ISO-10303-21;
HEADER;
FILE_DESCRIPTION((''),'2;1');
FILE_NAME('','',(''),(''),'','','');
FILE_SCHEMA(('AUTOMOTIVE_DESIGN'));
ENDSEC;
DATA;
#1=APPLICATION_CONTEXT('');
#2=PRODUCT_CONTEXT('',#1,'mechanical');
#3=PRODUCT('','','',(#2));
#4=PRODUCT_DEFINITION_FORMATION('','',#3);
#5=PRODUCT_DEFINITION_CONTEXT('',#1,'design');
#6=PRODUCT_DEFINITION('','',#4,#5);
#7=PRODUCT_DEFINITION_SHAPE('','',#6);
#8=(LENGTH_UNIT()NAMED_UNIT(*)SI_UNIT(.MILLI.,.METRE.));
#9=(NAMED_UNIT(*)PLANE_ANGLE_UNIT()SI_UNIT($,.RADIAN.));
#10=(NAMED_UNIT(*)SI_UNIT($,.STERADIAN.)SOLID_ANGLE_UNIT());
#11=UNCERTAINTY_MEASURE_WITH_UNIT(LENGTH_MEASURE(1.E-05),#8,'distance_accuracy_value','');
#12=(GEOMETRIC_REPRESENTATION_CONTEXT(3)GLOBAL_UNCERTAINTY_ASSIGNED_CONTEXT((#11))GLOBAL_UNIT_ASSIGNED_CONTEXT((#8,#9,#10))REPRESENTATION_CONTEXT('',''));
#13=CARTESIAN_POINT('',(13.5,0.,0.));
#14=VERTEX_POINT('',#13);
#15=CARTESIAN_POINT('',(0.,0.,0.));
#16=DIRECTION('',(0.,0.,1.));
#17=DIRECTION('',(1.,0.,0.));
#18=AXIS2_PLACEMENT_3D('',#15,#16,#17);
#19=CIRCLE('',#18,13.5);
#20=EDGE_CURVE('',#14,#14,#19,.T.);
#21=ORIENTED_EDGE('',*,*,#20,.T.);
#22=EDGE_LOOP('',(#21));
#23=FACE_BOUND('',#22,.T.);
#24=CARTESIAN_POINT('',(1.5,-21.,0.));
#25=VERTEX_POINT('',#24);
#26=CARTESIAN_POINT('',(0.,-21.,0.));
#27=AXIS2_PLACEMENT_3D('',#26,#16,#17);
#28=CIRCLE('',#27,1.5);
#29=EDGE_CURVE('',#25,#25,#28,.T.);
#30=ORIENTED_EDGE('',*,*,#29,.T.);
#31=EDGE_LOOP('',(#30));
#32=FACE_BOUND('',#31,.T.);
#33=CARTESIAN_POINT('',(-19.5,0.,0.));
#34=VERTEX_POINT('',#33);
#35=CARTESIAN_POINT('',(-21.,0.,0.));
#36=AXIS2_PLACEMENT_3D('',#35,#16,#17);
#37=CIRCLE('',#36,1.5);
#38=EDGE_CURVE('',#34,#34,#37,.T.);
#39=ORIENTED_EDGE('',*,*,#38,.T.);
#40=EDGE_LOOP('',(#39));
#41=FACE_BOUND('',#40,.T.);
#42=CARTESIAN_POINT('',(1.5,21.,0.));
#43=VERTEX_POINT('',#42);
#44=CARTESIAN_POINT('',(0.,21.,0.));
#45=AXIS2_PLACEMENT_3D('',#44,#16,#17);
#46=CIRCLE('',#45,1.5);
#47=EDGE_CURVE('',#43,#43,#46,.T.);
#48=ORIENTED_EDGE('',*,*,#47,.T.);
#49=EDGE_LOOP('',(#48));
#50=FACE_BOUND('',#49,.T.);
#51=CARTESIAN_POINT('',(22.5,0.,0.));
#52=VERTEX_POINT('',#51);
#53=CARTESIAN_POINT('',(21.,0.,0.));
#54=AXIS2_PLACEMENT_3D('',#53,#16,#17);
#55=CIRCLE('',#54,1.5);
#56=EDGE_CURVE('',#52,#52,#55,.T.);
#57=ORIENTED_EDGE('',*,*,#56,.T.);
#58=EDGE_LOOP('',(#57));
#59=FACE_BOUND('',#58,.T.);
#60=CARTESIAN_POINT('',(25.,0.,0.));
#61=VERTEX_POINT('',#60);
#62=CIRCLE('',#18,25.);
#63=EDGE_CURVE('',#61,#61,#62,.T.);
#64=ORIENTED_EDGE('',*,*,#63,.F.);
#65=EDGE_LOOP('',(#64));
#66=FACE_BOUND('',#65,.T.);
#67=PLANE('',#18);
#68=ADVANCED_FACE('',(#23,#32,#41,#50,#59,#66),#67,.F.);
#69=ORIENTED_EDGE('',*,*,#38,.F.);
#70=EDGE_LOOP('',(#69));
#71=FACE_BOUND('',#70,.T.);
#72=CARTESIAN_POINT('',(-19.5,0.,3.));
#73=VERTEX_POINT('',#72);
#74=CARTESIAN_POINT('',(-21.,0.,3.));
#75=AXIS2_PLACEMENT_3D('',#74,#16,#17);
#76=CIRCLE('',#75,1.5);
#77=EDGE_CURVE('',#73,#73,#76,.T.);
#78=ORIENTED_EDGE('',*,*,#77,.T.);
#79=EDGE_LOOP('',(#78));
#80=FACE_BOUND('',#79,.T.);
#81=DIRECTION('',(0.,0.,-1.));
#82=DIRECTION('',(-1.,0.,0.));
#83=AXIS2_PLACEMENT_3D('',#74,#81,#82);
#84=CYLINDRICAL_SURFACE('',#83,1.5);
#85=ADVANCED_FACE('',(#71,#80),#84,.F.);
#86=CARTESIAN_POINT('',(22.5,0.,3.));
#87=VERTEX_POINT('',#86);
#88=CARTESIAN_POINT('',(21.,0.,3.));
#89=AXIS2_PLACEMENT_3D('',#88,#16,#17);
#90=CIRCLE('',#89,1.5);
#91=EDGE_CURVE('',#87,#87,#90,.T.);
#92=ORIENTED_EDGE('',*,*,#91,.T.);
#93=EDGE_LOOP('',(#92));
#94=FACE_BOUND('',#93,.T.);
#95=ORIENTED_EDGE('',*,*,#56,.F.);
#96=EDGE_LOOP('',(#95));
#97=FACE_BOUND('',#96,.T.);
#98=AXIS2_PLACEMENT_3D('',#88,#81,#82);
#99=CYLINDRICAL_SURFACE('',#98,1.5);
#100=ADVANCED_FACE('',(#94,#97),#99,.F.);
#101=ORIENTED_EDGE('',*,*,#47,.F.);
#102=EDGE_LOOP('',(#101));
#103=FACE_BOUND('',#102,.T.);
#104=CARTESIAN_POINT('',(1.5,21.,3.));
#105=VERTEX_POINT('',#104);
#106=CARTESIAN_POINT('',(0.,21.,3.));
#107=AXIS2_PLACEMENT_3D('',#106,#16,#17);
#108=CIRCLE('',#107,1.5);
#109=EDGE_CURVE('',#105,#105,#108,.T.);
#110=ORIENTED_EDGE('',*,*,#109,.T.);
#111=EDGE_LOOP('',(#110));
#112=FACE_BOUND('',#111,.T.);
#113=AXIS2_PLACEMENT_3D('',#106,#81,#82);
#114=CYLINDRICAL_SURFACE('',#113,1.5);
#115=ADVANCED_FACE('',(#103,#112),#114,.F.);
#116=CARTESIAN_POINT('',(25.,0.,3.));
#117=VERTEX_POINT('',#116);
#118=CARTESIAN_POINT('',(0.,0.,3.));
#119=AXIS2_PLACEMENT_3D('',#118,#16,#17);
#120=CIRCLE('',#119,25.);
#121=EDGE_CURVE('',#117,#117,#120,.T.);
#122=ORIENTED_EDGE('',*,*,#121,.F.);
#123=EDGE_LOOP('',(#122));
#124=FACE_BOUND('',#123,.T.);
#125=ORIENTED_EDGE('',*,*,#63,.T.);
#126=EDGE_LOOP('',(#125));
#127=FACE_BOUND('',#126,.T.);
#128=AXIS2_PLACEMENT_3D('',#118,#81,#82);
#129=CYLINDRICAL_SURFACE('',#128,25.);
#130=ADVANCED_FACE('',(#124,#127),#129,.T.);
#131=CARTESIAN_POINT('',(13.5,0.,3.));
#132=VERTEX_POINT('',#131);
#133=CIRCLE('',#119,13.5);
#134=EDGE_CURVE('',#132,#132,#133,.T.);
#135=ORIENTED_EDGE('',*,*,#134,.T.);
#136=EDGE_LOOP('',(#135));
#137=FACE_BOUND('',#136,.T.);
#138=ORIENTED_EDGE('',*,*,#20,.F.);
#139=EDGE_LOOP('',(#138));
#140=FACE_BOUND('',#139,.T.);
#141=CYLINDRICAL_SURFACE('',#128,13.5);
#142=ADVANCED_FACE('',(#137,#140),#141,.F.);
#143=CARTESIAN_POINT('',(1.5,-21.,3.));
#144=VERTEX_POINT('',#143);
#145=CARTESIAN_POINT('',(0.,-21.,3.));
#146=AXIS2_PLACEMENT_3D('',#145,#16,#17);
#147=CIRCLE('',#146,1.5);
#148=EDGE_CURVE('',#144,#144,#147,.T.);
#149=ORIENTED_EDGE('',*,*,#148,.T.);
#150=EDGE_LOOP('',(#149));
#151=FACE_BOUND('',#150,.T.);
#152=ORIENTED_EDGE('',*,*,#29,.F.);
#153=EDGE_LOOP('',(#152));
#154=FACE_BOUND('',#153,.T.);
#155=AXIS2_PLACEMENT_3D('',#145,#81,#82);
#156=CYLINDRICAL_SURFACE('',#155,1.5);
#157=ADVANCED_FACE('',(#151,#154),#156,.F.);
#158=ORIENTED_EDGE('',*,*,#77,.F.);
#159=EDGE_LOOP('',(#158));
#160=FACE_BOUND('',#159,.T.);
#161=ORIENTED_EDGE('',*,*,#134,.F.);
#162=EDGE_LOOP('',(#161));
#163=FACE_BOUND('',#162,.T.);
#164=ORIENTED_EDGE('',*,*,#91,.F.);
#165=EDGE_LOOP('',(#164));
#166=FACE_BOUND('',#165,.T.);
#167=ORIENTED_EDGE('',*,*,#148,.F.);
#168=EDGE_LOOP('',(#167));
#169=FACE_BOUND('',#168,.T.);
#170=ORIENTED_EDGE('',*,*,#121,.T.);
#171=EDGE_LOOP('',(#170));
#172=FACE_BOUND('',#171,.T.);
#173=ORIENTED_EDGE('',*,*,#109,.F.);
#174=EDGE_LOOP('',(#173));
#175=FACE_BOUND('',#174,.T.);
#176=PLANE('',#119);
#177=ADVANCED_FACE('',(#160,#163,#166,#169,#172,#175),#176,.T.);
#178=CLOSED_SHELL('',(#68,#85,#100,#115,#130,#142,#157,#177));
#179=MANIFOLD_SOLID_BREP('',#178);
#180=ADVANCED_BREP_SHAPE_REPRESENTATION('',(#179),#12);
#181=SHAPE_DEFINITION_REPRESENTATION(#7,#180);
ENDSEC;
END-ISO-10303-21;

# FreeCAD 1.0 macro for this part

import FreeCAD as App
import Part
import Sketcher
Q = App.Units.Quantity

doc = App.newDocument("Part")
params = doc.addObject("Spreadsheet::Sheet", "Params")
for row, (alias, value) in enumerate([
    ("sketch1_diameter", "50 mm"),
    ("sketch1_diameter2", "3 mm"),
    ("sketch1_diameter3", "27 mm"),
    ("pad1_length", "3 mm"),
], start=1):
    params.set(f"A{row}", alias)
    params.set(f"B{row}", "=" + value)
    params.setAlias(f"B{row}", alias)

body = doc.addObject("PartDesign::Body", "Body")

sketch1 = body.newObject("Sketcher::SketchObject", "Sketch")
sketch1.AttachmentSupport = (doc.getObject("XY_Plane"), [""])
sketch1.MapMode = "FlatFace"
sketch1.addGeometry(Part.Circle(App.Vector(0, 0, 0), App.Vector(0, 0, 1), 25), False)
sketch1.addGeometry(Part.Circle(App.Vector(0, -21, 0), App.Vector(0, 0, 1), 1.5), False)
sketch1.addGeometry(Part.Circle(App.Vector(-21, 0, 0), App.Vector(0, 0, 1), 1.5), False)
sketch1.addGeometry(Part.Circle(App.Vector(0, 0, 0), App.Vector(0, 0, 1), 13.5), False)
sketch1.addGeometry(Part.Circle(App.Vector(21, 0, 0), App.Vector(0, 0, 1), 1.5), False)
sketch1.addGeometry(Part.Circle(App.Vector(0, 21, 0), App.Vector(0, 0, 1), 1.5), False)
sketch1.addConstraint(Sketcher.Constraint("Coincident", 0, 3, -1, 1))
sketch1.addConstraint(Sketcher.Constraint("Coincident", 3, 3, -1, 1))
sketch1.addConstraint(Sketcher.Constraint("Equal", 1, 2))
sketch1.addConstraint(Sketcher.Constraint("Equal", 2, 4))
sketch1.addConstraint(Sketcher.Constraint("Equal", 4, 5))
sketch1.addConstraint(Sketcher.Constraint("Symmetric", 2, 3, 4, 3, -1, 1))
sketch1.addConstraint(Sketcher.Constraint("Symmetric", 1, 3, 5, 3, -1, 1))
sketch1.addConstraint(Sketcher.Constraint("PointOnObject", 1, 3, -2))
sketch1.addConstraint(Sketcher.Constraint("PointOnObject", 2, 3, -1))
sketch1.addConstraint(Sketcher.Constraint("Diameter", 0, Q("50 mm")))
sketch1.addConstraint(Sketcher.Constraint("Diameter", 1, Q("3 mm")))
sketch1.addConstraint(Sketcher.Constraint("Diameter", 3, Q("27 mm")))
sketch1.addConstraint(Sketcher.Constraint("DistanceY", 1, 3, -1, 1, Q("21 mm")))
sketch1.addConstraint(Sketcher.Constraint("DistanceX", 2, 3, -1, 1, Q("21 mm")))
sketch1.setExpression("Constraints[9]", "Params.sketch1_diameter")
sketch1.setExpression("Constraints[10]", "Params.sketch1_diameter2")
sketch1.setExpression("Constraints[11]", "Params.sketch1_diameter3")
pad1 = body.newObject("PartDesign::Pad", "Pad")
pad1.Profile = sketch1
pad1.setExpression("Length", "Params.pad1_length")

doc.recompute()
